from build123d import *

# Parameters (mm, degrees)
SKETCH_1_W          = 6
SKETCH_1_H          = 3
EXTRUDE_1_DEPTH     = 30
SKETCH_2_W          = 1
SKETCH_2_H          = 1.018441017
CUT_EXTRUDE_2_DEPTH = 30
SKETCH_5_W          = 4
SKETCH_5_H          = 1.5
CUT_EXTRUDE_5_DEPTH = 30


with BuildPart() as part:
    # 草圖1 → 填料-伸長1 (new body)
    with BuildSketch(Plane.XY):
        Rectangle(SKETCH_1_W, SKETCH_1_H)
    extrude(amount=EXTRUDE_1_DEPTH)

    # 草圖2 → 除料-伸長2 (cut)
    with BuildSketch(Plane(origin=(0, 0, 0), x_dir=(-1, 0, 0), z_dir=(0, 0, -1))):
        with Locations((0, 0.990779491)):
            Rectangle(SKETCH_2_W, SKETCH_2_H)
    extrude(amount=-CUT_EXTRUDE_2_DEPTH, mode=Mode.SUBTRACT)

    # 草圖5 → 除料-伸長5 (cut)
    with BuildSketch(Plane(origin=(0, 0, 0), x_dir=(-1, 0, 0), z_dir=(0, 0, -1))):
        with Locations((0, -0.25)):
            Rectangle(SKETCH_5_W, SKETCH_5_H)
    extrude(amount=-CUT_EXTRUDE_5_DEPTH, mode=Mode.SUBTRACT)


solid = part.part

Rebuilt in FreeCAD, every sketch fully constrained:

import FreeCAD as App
import Part
import Sketcher

doc = App.newDocument("Part")
body = doc.addObject("PartDesign::Body", "Body")

sketch1 = body.newObject("Sketcher::SketchObject", "Sketch")
sketch1.AttachmentSupport = (doc.getObject("XY_Plane"), [""])
sketch1.MapMode = "FlatFace"
sketch1.addGeometry([
    Part.LineSegment(App.Vector(-3, 1.5, 0), App.Vector(-3, -1.5, 0)),
    Part.LineSegment(App.Vector(-3, -1.5, 0), App.Vector(3, -1.5, 0)),
    Part.LineSegment(App.Vector(3, -1.5, 0), App.Vector(3, 1.5, 0)),
    Part.LineSegment(App.Vector(3, 1.5, 0), App.Vector(-3, 1.5, 0)),
], False)
sketch1.addConstraint([
    Sketcher.Constraint("Coincident", 0, 2, 1, 1),
    Sketcher.Constraint("Coincident", 1, 2, 2, 1),
    Sketcher.Constraint("Coincident", 2, 2, 3, 1),
    Sketcher.Constraint("Coincident", 3, 2, 0, 1),
    Sketcher.Constraint("Vertical", 0),
    Sketcher.Constraint("Horizontal", 1),
    Sketcher.Constraint("Vertical", 2),
    Sketcher.Constraint("Horizontal", 3),
    Sketcher.Constraint("Symmetric", 0, 2, 2, 2, -1, 1),
    Sketcher.Constraint("DistanceX", 1, 1, 1, 2, 6.0),
    Sketcher.Constraint("DistanceY", 0, 2, 0, 1, 3.0),
])
pad1 = body.newObject("PartDesign::Pad", "Pad")
pad1.Profile = sketch1
pad1.Length = 30

sketch2 = body.newObject("Sketcher::SketchObject", "Sketch001")
sketch2.AttachmentSupport = (doc.getObject("XY_Plane"), [""])
sketch2.MapMode = "FlatFace"
sketch2.addGeometry([
    Part.LineSegment(App.Vector(0.5, 1.5, 0), App.Vector(0.5, 0.5, 0)),
    Part.LineSegment(App.Vector(0.5, 0.5, 0), App.Vector(-0.5, 0.5, 0)),
    Part.LineSegment(App.Vector(-0.5, 0.5, 0), App.Vector(-0.5, 1.5, 0)),
    Part.LineSegment(App.Vector(-0.5, 1.5, 0), App.Vector(0.5, 1.5, 0)),
], False)
sketch2.addConstraint([
    Sketcher.Constraint("Coincident", 0, 2, 1, 1),
    Sketcher.Constraint("Coincident", 1, 2, 2, 1),
    Sketcher.Constraint("Coincident", 2, 2, 3, 1),
    Sketcher.Constraint("Coincident", 3, 2, 0, 1),
    Sketcher.Constraint("Vertical", 0),
    Sketcher.Constraint("Horizontal", 1),
    Sketcher.Constraint("Vertical", 2),
    Sketcher.Constraint("Horizontal", 3),
    Sketcher.Constraint("DistanceX", 1, 2, 1, 1, 1.0),
    Sketcher.Constraint("DistanceX", -1, 1, 0, 2, 0.5),
    Sketcher.Constraint("DistanceY", -1, 1, 2, 2, 1.5),
    Sketcher.Constraint("DistanceY", 0, 2, 0, 1, 1.018441),
])
pocket1 = body.newObject("PartDesign::Pocket", "Pocket")
pocket1.Profile = sketch2
pocket1.Length = 30
pocket1.Reversed = True

sketch3 = body.newObject("Sketcher::SketchObject", "Sketch002")
sketch3.AttachmentSupport = (doc.getObject("XY_Plane"), [""])
sketch3.MapMode = "FlatFace"
sketch3.addGeometry([
    Part.LineSegment(App.Vector(2, 0.5, 0), App.Vector(2, -1, 0)),
    Part.LineSegment(App.Vector(2, -1, 0), App.Vector(-2, -1, 0)),
    Part.LineSegment(App.Vector(-2, -1, 0), App.Vector(-2, 0.5, 0)),
    Part.LineSegment(App.Vector(-2, 0.5, 0), App.Vector(2, 0.5, 0)),
], False)
sketch3.addConstraint([
    Sketcher.Constraint("Coincident", 0, 2, 1, 1),
    Sketcher.Constraint("Coincident", 1, 2, 2, 1),
    Sketcher.Constraint("Coincident", 2, 2, 3, 1),
    Sketcher.Constraint("Coincident", 3, 2, 0, 1),
    Sketcher.Constraint("Vertical", 0),
    Sketcher.Constraint("Horizontal", 1),
    Sketcher.Constraint("Vertical", 2),
    Sketcher.Constraint("Horizontal", 3),
    Sketcher.Constraint("DistanceX", 1, 2, 1, 1, 4.0),
    Sketcher.Constraint("DistanceY", 0, 2, 0, 1, 1.5),
    Sketcher.Constraint("DistanceX", -1, 1, 0, 2, 2.0),
    Sketcher.Constraint("DistanceY", 0, 2, -1, 1, 1.0),
])
pocket2 = body.newObject("PartDesign::Pocket", "Pocket001")
pocket2.Profile = sketch3
pocket2.Length = 30
pocket2.Reversed = True

doc.recompute()
